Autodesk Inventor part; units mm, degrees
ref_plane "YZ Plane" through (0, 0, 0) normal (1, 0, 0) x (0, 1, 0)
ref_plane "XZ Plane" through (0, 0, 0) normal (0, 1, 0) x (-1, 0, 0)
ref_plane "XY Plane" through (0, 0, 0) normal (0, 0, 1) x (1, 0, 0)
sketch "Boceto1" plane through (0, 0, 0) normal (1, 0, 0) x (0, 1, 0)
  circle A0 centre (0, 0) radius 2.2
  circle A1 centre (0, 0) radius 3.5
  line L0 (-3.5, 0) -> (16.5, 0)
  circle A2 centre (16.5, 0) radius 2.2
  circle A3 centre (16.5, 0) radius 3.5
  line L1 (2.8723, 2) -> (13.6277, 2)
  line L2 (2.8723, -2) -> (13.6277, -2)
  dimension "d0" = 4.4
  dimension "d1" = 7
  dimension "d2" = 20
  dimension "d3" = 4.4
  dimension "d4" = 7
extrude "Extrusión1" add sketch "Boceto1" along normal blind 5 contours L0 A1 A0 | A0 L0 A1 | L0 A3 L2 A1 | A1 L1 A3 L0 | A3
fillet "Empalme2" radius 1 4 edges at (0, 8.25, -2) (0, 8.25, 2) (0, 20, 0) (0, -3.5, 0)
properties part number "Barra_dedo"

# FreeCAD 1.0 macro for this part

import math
import FreeCAD as App
import Part
import Sketcher
from FreeCAD import Vector
Q = App.Units.Quantity


def edges_at(feature, points):
    """Names of the edges that pass closest to the given points."""
    edges = feature.Shape.Edges
    near = lambda p: min(range(len(edges)), key=lambda i: edges[i].distToShape(Part.Vertex(*p))[0])
    return sorted({f"Edge{near(p) + 1}" for p in points})

doc = App.newDocument("Part")
body = doc.addObject("PartDesign::Body", "Body")

sketch1 = body.newObject("Sketcher::SketchObject", "Sketch")
sketch1.AttachmentSupport = (doc.getObject("YZ_Plane"), [""])
sketch1.MapMode = "FlatFace"
sketch1.addGeometry([
    Part.LineSegment(Vector(2.9, -2, 0), Vector(13.6, -2, 0)),
    Part.ArcOfCircle(Part.Circle(Vector(16.5, 0, 0), Vector(0, 0, 1), 3.5), math.radians(-145), math.radians(145)),
    Part.LineSegment(Vector(13.6, 2, 0), Vector(2.9, 2, 0)),
    Part.ArcOfCircle(Part.Circle(Vector(0, 0, 0), Vector(0, 0, 1), 3.5), math.radians(35), math.radians(325)),
    Part.Circle(Vector(0, 0, 0), Vector(0, 0, 1), 2.2),
    Part.Circle(Vector(16.5, 0, 0), Vector(0, 0, 1), 2.2),
], False)
sketch1.addConstraint([
    Sketcher.Constraint("Coincident", 0, 2, 1, 1),
    Sketcher.Constraint("Coincident", 1, 2, 2, 1),
    Sketcher.Constraint("Coincident", 2, 2, 3, 1),
    Sketcher.Constraint("Coincident", 3, 2, 0, 1),
    Sketcher.Constraint("Horizontal", 0),
    Sketcher.Constraint("Horizontal", 2),
    Sketcher.Constraint("Coincident", 3, 3, -1, 1),
    Sketcher.Constraint("Coincident", 4, 3, -1, 1),
    Sketcher.Constraint("Coincident", 5, 3, 1, 3),
    Sketcher.Constraint("Equal", 1, 3),
    Sketcher.Constraint("Equal", 4, 5),
    Sketcher.Constraint("Symmetric", 0, 2, 1, 2, -1),
    Sketcher.Constraint("Diameter", 4, Q("4.4 mm")),
    Sketcher.Constraint("Radius", 1, Q("3.5 mm")),
    Sketcher.Constraint("DistanceY", 0, 2, -1, 1, Q("2 mm")),
    Sketcher.Constraint("DistanceX", -1, 1, 1, 3, Q("16.5 mm")),
])
pad1 = body.newObject("PartDesign::Pad", "Pad")
pad1.Profile = sketch1
pad1.Length = 5
doc.recompute()

fillet = body.newObject("PartDesign::Fillet", "Fillet")
fillet.Base = (pad1, edges_at(pad1, [
    (0, 8.25, -2),
    (0, 8.25, 2),
    (0, 20, 0),
    (0, -3.5, 0),
]))
fillet.Radius = 1

doc.recompute()
